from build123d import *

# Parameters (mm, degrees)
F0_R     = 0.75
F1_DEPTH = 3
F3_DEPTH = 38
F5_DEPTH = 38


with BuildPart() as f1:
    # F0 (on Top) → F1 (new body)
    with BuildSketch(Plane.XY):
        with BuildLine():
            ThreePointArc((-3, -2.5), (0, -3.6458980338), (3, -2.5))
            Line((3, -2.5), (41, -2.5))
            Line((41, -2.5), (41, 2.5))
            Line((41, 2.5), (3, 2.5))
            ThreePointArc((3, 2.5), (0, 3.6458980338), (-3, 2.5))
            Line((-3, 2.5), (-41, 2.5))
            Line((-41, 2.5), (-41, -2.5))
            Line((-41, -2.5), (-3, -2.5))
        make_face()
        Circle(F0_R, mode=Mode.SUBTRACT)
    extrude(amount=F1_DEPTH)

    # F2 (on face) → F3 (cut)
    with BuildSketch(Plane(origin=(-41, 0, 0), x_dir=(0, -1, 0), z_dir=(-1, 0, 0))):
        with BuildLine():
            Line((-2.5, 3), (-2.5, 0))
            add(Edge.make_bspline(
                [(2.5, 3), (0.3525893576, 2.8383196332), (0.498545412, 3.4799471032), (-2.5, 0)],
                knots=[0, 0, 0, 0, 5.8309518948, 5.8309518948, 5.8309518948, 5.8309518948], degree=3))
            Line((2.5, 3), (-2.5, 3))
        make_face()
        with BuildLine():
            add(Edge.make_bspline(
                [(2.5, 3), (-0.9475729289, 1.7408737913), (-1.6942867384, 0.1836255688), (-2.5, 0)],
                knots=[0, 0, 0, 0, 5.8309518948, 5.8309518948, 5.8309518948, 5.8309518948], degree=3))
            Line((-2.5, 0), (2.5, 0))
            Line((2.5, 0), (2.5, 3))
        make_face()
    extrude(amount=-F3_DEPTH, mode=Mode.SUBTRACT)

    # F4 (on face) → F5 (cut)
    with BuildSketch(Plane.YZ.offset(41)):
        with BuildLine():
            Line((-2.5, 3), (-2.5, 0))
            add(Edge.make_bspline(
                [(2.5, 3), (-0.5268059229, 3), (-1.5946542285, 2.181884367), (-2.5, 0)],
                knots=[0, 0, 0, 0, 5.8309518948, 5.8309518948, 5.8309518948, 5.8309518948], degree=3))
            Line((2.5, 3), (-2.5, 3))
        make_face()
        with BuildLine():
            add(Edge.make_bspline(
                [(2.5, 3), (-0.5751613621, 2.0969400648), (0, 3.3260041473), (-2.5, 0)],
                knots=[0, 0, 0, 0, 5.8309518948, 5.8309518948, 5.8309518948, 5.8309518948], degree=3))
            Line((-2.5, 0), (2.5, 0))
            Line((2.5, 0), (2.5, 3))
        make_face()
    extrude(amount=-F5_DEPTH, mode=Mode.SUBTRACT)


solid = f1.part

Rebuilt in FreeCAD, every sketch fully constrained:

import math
import FreeCAD as App
import Part
import Sketcher

V = App.Vector

doc = App.newDocument("Part")
body = doc.addObject("PartDesign::Body", "Body")

# Sketch on XY plane
sketch1 = body.newObject("Sketcher::SketchObject", "Sketch")
sketch1.AttachmentSupport = (doc.getObject("XY_Plane"), [""])
sketch1.MapMode = "FlatFace"
sketch1.addGeometry([
    Part.ArcOfCircle(Part.Circle(V(0, 0.854102, 0), V(0, 0, 1), 4.5), math.radians(-131.810315), math.radians(-48.189685)),  # 0
    Part.LineSegment(V(3, -2.5, 0), V(41, -2.5, 0)),  # 1
    Part.LineSegment(V(41, -2.5, 0), V(41, 2.5, 0)),  # 2
    Part.LineSegment(V(41, 2.5, 0), V(3, 2.5, 0)),  # 3
    Part.ArcOfCircle(Part.Circle(V(0, -0.854102, 0), V(0, 0, 1), 4.5), math.radians(48.189685), math.radians(131.810315)),  # 4
    Part.LineSegment(V(-3, 2.5, 0), V(-41, 2.5, 0)),  # 5
    Part.LineSegment(V(-41, 2.5, 0), V(-41, -2.5, 0)),  # 6
    Part.LineSegment(V(-41, -2.5, 0), V(-3, -2.5, 0)),  # 7
    Part.Circle(V(0, 0, 0), V(0, 0, 1), 0.75),  # 8
], False)
sketch1.addConstraint([
    Sketcher.Constraint("Coincident", 0, 2, 1, 1),
    Sketcher.Constraint("Coincident", 1, 2, 2, 1),
    Sketcher.Constraint("Coincident", 2, 2, 3, 1),
    Sketcher.Constraint("Coincident", 3, 2, 4, 1),
    Sketcher.Constraint("Coincident", 4, 2, 5, 1),
    Sketcher.Constraint("Coincident", 5, 2, 6, 1),
    Sketcher.Constraint("Coincident", 6, 2, 7, 1),
    Sketcher.Constraint("Coincident", 7, 2, 0, 1),
    Sketcher.Constraint("Horizontal", 1),
    Sketcher.Constraint("Vertical", 2),
    Sketcher.Constraint("Horizontal", 3),
    Sketcher.Constraint("Horizontal", 5),
    Sketcher.Constraint("Vertical", 6),
    Sketcher.Constraint("Horizontal", 7),
    Sketcher.Constraint("Coincident", 8, 3, -1, 1),
    Sketcher.Constraint("Equal", 0, 4),
    Sketcher.Constraint("Symmetric", 0, 3, 4, 3, -1, 1),
    Sketcher.Constraint("Symmetric", 1, 2, 5, 2, -1, 1),
    Sketcher.Constraint("Symmetric", 3, 2, 4, 2, -2),
    Sketcher.Constraint("Horizontal", 1, 2, 6, 2),
    Sketcher.Constraint("Diameter", 8, 1.5),
    Sketcher.Constraint("Radius", 0, 4.5),
    Sketcher.Constraint("DistanceX", 1, 1, 1, 2, 38.0),
    Sketcher.Constraint("DistanceY", 2, 1, 2, 2, 5.0),
    Sketcher.Constraint("DistanceX", -1, 1, 0, 2, 3.0),
])
pad1 = body.newObject("PartDesign::Pad", "Pad")
pad1.Profile = sketch1
pad1.Length = 3

# Sketch on YZ plane
sketch2 = body.newObject("Sketcher::SketchObject", "Sketch001")
sketch2.AttachmentSupport = (doc.getObject("YZ_Plane"), [""])
sketch2.MapMode = "FlatFace"
sketch2.AttachmentOffset = App.Placement(V(0, 0, -41), App.Rotation())
sketch2.addGeometry([
    Part.LineSegment(V(2.5, 3, 0), V(2.5, 0, 0)),  # 0
    Part.BSplineCurve([V(-2.5, 3, 0), V(-0.352589, 2.83832, 0), V(-0.498545, 3.479947, 0), V(2.5, 0, 0)], [4, 4], [0, 5.830951895], False, 3, [1, 1, 1, 1], False),  # 1
    Part.LineSegment(V(-2.5, 3, 0), V(2.5, 3, 0)),  # 2
    Part.BSplineCurve([V(-2.5, 3, 0), V(0.947573, 1.740874, 0), V(1.694287, 0.183626, 0), V(2.5, 0, 0)], [4, 4], [0, 5.830951895], False, 3, [1, 1, 1, 1], False),  # 3
    Part.LineSegment(V(2.5, 0, 0), V(-2.5, 0, 0)),  # 4
    Part.LineSegment(V(-2.5, 0, 0), V(-2.5, 3, 0)),  # 5
], False)
sketch2.addConstraint([
    Sketcher.Constraint("Block", 1),
    Sketcher.Constraint("Block", 3),
    Sketcher.Constraint("Coincident", 0, 2, 1, 2),
    Sketcher.Constraint("Coincident", 1, 1, 2, 1),
    Sketcher.Constraint("Coincident", 2, 2, 0, 1),
    Sketcher.Constraint("Coincident", 3, 2, 4, 1),
    Sketcher.Constraint("Coincident", 4, 2, 5, 1),
    Sketcher.Constraint("Coincident", 5, 2, 3, 1),
    Sketcher.Constraint("Vertical", 0),
    Sketcher.Constraint("Horizontal", 2),
    Sketcher.Constraint("Horizontal", 4),
    Sketcher.Constraint("Vertical", 5),
])
pocket1 = body.newObject("PartDesign::Pocket", "Pocket")
pocket1.Profile = sketch2
pocket1.Length = 38
pocket1.Reversed = True

# Sketch on YZ plane
sketch3 = body.newObject("Sketcher::SketchObject", "Sketch002")
sketch3.AttachmentSupport = (doc.getObject("YZ_Plane"), [""])
sketch3.MapMode = "FlatFace"
sketch3.AttachmentOffset = App.Placement(V(0, 0, 41), App.Rotation())
sketch3.addGeometry([
    Part.LineSegment(V(-2.5, 3, 0), V(-2.5, 0, 0)),  # 0
    Part.BSplineCurve([V(2.5, 3, 0), V(-0.526806, 3, 0), V(-1.594654, 2.181884, 0), V(-2.5, 0, 0)], [4, 4], [0, 5.830951895], False, 3, [1, 1, 1, 1], False),  # 1
    Part.LineSegment(V(2.5, 3, 0), V(-2.5, 3, 0)),  # 2
    Part.BSplineCurve([V(2.5, 3, 0), V(-0.575161, 2.09694, 0), V(0, 3.326004, 0), V(-2.5, 0, 0)], [4, 4], [0, 5.830951895], False, 3, [1, 1, 1, 1], False),  # 3
    Part.LineSegment(V(-2.5, 0, 0), V(2.5, 0, 0)),  # 4
    Part.LineSegment(V(2.5, 0, 0), V(2.5, 3, 0)),  # 5
], False)
sketch3.addConstraint([
    Sketcher.Constraint("Block", 1),
    Sketcher.Constraint("Block", 3),
    Sketcher.Constraint("Coincident", 0, 2, 1, 2),
    Sketcher.Constraint("Coincident", 1, 1, 2, 1),
    Sketcher.Constraint("Coincident", 2, 2, 0, 1),
    Sketcher.Constraint("Coincident", 3, 2, 4, 1),
    Sketcher.Constraint("Coincident", 4, 2, 5, 1),
    Sketcher.Constraint("Coincident", 5, 2, 3, 1),
    Sketcher.Constraint("Vertical", 0),
    Sketcher.Constraint("Horizontal", 2),
    Sketcher.Constraint("Horizontal", 4),
    Sketcher.Constraint("Vertical", 5),
])
pocket2 = body.newObject("PartDesign::Pocket", "Pocket001")
pocket2.Profile = sketch3
pocket2.Length = 38

doc.recompute()
